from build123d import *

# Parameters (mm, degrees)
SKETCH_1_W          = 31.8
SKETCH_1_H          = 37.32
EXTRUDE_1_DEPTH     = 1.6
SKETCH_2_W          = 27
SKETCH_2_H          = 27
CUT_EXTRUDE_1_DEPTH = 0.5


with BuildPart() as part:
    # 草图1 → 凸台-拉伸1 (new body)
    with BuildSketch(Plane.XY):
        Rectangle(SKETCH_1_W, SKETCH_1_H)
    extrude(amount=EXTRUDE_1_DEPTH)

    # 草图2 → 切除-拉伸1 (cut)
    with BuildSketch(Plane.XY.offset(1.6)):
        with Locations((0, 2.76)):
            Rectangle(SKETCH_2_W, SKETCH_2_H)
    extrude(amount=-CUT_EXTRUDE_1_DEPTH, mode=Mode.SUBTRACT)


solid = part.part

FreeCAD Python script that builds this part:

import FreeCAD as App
import Part
import Sketcher
from FreeCAD import Vector


def add_polygon(sketch, points):
    """Adds a closed chain of lines whose ends are joined by coincident constraints."""
    first, n = sketch.GeometryCount, len(points)
    for a, b in zip(points, points[1:] + points[:1]):
        sketch.addGeometry(Part.LineSegment(App.Vector(*a, 0), App.Vector(*b, 0)), False)
    for i in range(n):
        sketch.addConstraint(Sketcher.Constraint("Coincident", first + i, 2, first + (i + 1) % n, 1))

doc = App.newDocument("Part")
params = doc.addObject("Spreadsheet::Sheet", "Params")
for row, (alias, value) in enumerate([
    ("sketch1_width", "31.8 mm"),
    ("sketch1_height", "37.32 mm"),
    ("pad1_length", "1.6 mm"),
    ("sketch2_width", "27 mm"),
    ("pocket1_length", "0.5 mm"),
], start=1):
    params.set(f"A{row}", alias)
    params.set(f"B{row}", "=" + value)
    params.setAlias(f"B{row}", alias)

body = doc.addObject("PartDesign::Body", "Body")

sketch1 = body.newObject("Sketcher::SketchObject", "Sketch")
sketch1.AttachmentSupport = (doc.getObject("XY_Plane"), [""])
sketch1.MapMode = "FlatFace"
add_polygon(sketch1, [(-15.9, 18.66), (-15.9, -18.66), (15.9, -18.66), (15.9, 18.66)])
sketch1.addConstraint([
    Sketcher.Constraint("Vertical", 0),
    Sketcher.Constraint("Horizontal", 1),
    Sketcher.Constraint("Vertical", 2),
    Sketcher.Constraint("Horizontal", 3),
    Sketcher.Constraint("Symmetric", 0, 2, 2, 2, -1, 1),
    Sketcher.Constraint("DistanceX", 1, 1, 1, 2, 31.8),
    Sketcher.Constraint("DistanceY", 0, 2, 0, 1, 37.32),
])
sketch1.setExpression("Constraints[9]", "Params.sketch1_width")
sketch1.setExpression("Constraints[10]", "Params.sketch1_height")
pad1 = body.newObject("PartDesign::Pad", "Pad")
pad1.Profile = sketch1
pad1.setExpression("Length", "Params.pad1_length")

sketch2 = body.newObject("Sketcher::SketchObject", "Sketch001")
sketch2.AttachmentSupport = (doc.getObject("XY_Plane"), [""])
sketch2.MapMode = "FlatFace"
sketch2.AttachmentOffset = App.Placement(Vector(0, 0, 1.6), App.Rotation())
add_polygon(sketch2, [(-13.5, 16.26), (-13.5, -10.74), (13.5, -10.74), (13.5, 16.26)])
sketch2.addConstraint([
    Sketcher.Constraint("Vertical", 0),
    Sketcher.Constraint("Horizontal", 1),
    Sketcher.Constraint("Vertical", 2),
    Sketcher.Constraint("Horizontal", 3),
    Sketcher.Constraint("Equal", 3, 0),
    Sketcher.Constraint("DistanceX", 1, 1, 1, 2, 27.0),
    Sketcher.Constraint("DistanceX", 0, 2, -1, 1, 13.5),
    Sketcher.Constraint("DistanceY", 0, 2, -1, 1, 10.74),
])
sketch2.setExpression("Constraints[9]", "Params.sketch2_width")
pocket1 = body.newObject("PartDesign::Pocket", "Pocket")
pocket1.Profile = sketch2
pocket1.setExpression("Length", "Params.pocket1_length")

doc.recompute()
